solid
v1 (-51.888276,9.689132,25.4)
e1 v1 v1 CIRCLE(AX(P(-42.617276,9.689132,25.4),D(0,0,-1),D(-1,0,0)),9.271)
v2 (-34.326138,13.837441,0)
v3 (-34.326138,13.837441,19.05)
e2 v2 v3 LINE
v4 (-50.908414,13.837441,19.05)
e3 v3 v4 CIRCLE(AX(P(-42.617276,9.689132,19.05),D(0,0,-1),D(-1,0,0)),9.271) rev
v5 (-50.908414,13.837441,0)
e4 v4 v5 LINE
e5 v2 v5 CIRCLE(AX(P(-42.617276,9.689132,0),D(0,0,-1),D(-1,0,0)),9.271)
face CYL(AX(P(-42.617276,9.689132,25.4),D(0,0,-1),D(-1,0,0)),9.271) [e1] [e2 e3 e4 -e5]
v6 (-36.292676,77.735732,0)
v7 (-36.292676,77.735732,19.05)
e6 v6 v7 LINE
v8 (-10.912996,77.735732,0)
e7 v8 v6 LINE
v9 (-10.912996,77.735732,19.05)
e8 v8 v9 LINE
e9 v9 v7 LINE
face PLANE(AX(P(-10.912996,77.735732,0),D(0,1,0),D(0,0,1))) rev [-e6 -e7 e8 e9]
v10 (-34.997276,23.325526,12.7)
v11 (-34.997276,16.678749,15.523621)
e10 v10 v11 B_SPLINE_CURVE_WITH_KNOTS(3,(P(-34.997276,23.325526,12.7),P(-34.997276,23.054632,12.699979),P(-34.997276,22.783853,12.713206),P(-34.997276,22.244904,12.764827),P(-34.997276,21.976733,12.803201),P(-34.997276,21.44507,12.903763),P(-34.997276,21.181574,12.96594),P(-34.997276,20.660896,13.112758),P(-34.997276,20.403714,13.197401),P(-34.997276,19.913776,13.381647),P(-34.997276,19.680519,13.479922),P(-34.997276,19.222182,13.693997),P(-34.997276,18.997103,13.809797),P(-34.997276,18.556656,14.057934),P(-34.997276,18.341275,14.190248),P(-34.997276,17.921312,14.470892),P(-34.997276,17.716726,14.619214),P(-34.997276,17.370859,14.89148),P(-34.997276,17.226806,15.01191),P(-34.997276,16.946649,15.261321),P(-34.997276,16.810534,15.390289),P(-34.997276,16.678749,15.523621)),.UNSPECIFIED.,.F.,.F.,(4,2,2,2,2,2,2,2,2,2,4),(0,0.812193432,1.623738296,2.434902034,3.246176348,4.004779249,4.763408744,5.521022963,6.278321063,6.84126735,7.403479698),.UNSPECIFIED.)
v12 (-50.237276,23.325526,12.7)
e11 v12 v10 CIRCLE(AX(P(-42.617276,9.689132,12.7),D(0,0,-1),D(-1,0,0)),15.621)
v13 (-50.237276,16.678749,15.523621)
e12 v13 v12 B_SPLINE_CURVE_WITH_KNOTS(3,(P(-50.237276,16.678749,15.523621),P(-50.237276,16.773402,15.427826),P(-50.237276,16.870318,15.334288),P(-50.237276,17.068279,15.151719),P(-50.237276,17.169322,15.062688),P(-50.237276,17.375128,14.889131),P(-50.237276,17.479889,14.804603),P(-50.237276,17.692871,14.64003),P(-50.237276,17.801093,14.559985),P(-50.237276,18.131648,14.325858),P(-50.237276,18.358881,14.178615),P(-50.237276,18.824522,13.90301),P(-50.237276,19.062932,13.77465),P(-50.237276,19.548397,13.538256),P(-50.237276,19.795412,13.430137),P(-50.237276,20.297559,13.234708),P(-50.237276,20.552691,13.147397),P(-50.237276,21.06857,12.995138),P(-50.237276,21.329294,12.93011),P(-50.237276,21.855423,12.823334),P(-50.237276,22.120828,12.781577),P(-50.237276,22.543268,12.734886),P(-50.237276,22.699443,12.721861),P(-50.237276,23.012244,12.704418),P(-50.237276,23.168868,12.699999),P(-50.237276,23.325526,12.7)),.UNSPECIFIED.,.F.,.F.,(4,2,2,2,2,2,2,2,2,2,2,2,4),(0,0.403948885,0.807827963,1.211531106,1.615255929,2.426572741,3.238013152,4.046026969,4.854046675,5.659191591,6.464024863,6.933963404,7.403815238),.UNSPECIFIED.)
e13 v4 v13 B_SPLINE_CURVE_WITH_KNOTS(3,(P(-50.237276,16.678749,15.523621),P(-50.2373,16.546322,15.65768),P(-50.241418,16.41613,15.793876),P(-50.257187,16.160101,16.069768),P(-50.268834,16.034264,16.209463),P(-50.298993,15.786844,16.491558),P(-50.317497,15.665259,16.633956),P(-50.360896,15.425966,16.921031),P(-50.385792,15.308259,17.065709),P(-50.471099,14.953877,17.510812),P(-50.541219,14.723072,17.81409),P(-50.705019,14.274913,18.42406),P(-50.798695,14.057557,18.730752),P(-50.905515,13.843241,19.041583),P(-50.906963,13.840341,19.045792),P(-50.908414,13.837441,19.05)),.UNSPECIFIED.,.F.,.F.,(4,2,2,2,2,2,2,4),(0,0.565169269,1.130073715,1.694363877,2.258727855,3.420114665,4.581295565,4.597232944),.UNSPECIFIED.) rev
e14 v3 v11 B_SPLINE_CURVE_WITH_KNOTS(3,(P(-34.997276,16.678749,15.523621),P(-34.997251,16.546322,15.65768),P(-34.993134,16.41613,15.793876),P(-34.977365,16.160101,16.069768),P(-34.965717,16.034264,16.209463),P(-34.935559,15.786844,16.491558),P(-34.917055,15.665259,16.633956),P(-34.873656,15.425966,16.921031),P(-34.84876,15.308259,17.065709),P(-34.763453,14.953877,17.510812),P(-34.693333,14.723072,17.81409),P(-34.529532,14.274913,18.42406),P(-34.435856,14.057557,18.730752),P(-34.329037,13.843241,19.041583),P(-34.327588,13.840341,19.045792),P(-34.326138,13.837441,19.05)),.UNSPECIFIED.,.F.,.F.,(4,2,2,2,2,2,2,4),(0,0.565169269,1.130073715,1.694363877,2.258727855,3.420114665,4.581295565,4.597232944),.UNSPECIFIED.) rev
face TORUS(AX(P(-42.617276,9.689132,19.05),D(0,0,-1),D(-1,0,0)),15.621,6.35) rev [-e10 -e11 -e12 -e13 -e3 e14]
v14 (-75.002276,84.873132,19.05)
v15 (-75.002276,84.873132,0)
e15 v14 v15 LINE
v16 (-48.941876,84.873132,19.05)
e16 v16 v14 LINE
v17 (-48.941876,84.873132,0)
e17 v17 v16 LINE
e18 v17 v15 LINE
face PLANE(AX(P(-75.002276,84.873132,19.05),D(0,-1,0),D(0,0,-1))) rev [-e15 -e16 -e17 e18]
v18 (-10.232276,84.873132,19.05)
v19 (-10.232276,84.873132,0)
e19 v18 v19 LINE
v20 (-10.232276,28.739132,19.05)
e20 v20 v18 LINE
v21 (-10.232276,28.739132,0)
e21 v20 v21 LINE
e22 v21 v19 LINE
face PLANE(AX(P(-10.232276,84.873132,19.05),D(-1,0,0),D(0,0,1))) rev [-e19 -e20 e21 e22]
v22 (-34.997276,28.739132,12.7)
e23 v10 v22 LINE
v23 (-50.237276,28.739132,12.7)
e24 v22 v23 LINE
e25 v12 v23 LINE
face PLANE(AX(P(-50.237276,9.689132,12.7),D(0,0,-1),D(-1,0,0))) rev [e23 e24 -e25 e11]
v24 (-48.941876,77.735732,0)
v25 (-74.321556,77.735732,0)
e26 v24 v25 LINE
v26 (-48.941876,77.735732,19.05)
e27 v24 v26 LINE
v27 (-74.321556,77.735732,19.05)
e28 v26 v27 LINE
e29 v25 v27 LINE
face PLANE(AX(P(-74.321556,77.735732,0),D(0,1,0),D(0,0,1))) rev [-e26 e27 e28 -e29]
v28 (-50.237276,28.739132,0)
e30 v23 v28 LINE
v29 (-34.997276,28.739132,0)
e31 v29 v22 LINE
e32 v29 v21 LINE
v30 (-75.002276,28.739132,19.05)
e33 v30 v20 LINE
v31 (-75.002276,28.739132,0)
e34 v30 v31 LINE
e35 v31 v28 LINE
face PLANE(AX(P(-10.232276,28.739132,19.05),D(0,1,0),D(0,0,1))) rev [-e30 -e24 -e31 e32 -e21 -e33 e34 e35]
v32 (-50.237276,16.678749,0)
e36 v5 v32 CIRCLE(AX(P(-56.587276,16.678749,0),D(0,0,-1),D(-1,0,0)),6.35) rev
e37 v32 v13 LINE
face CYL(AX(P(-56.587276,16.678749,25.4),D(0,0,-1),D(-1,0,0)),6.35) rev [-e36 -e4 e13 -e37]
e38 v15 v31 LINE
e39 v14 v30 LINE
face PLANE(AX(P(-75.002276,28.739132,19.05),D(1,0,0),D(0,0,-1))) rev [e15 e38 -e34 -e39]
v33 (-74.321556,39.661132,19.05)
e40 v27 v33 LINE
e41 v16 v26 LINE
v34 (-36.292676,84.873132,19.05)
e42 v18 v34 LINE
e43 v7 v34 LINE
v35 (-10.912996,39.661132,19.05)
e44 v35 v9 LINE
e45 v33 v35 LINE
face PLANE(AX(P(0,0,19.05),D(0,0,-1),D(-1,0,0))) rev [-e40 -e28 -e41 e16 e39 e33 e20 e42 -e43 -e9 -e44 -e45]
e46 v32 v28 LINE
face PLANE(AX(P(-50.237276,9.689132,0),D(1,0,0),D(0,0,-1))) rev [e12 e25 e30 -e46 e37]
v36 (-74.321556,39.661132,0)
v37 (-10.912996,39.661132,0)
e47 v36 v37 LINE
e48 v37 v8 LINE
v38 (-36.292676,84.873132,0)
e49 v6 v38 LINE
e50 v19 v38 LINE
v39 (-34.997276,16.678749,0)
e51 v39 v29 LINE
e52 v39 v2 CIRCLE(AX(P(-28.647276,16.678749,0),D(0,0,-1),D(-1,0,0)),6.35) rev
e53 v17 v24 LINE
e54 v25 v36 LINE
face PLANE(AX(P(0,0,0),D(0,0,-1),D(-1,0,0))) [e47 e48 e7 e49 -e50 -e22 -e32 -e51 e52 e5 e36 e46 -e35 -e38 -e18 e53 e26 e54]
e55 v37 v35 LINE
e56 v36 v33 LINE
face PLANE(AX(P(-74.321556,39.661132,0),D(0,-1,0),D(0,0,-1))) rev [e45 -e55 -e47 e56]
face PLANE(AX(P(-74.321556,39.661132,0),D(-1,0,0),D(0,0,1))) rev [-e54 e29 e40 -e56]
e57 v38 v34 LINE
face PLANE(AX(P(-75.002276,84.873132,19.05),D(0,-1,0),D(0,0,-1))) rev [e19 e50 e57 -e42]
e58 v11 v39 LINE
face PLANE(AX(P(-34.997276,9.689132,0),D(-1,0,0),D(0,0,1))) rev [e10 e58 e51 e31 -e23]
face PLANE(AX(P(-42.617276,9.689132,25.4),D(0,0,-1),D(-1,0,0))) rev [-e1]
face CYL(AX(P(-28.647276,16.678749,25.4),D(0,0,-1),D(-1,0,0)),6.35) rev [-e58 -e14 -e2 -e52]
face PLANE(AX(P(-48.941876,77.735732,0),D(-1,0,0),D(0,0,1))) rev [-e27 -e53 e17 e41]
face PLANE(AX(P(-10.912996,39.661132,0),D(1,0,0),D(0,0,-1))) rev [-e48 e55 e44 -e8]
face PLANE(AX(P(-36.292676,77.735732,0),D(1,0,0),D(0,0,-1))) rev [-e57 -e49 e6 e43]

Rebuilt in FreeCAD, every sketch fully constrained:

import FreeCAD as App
import Part
import Sketcher
from FreeCAD import Vector
Q = App.Units.Quantity


def edges_at(feature, points):
    """Names of the edges that pass closest to the given points."""
    edges = feature.Shape.Edges
    near = lambda p: min(range(len(edges)), key=lambda i: edges[i].distToShape(Part.Vertex(*p))[0])
    return sorted({f"Edge{near(p) + 1}" for p in points})

doc = App.newDocument("Part")
params = doc.addObject("Spreadsheet::Sheet", "Params")
for row, (alias, value) in enumerate([
    ("sketch1_width", "2.55 in"),
    ("sketch1_height", "2.21 in"),
    ("pad1_length", "0.75 in"),
    ("sketch2_width", "0.498 in"),
    ("sketch2_height", "1.499 in"),
    ("sketch2_height2", "0.281 in"),
    ("sketch3_width", "0.6 in"),
    ("sketch3_height", "0.5 in"),
    ("pad2_length", "0.75 in"),
    ("sketch4_diameter", "0.73 in"),
    ("pad3_length", "1 in"),
    ("fillet_radius", "0.25 in"),
], start=1):
    params.set(f"A{row}", alias)
    params.set(f"B{row}", "=" + value)
    params.setAlias(f"B{row}", alias)

body = doc.addObject("PartDesign::Body", "Body")

# Sketch on XY plane
sketch1 = doc.addObject("Sketcher::SketchObject", "Sketch")
body.addObject(sketch1)
sketch1.AttachmentSupport = (doc.XY_Plane, [""])
sketch1.MapMode = "FlatFace"
sketch1.addGeometry([
    Part.LineSegment(Vector(-75, 85, 0), Vector(-75, 29, 0)),
    Part.LineSegment(Vector(-75, 29, 0), Vector(-10, 29, 0)),
    Part.LineSegment(Vector(-10, 29, 0), Vector(-10, 85, 0)),
    Part.LineSegment(Vector(-10, 85, 0), Vector(-75, 85, 0)),
], False)
sketch1.addConstraint([
    Sketcher.Constraint("Coincident", 0, 2, 1, 1),
    Sketcher.Constraint("Coincident", 1, 2, 2, 1),
    Sketcher.Constraint("Coincident", 2, 2, 3, 1),
    Sketcher.Constraint("Coincident", 3, 2, 0, 1),
    Sketcher.Constraint("Vertical", 0),
    Sketcher.Constraint("Horizontal", 1),
    Sketcher.Constraint("Vertical", 2),
    Sketcher.Constraint("Horizontal", 3),
    Sketcher.Constraint("DistanceX", 1, 1, 1, 2, Q("2.55 in")),
    Sketcher.Constraint("DistanceY", 0, 2, 0, 1, Q("2.21 in")),
    Sketcher.Constraint("DistanceX", 0, 2, -1, 1, 75.002276),
    Sketcher.Constraint("DistanceY", -1, 1, 0, 2, 28.739132),
])
sketch1.setExpression("Constraints[8]", "Params.sketch1_width")
sketch1.setExpression("Constraints[9]", "Params.sketch1_height")
pad1 = doc.addObject("PartDesign::Pad", "Pad")
body.addObject(pad1)
pad1.Profile = sketch1
pad1.setExpression("Length", "Params.pad1_length")

# Sketch on XY plane
sketch2 = doc.addObject("Sketcher::SketchObject", "Sketch001")
body.addObject(sketch2)
sketch2.AttachmentSupport = (doc.XY_Plane, [""])
sketch2.MapMode = "FlatFace"
sketch2.AttachmentOffset = App.Placement(Vector(0, 0, 0.75 * 25.4), App.Rotation())
sketch2.addGeometry([
    Part.LineSegment(Vector(-74, 40, 0), Vector(-11, 40, 0)),  # 0
    Part.LineSegment(Vector(-11, 40, 0), Vector(-11, 78, 0)),  # 1
    Part.LineSegment(Vector(-11, 78, 0), Vector(-36, 78, 0)),  # 2
    Part.LineSegment(Vector(-36, 78, 0), Vector(-36, 85, 0)),  # 3
    Part.LineSegment(Vector(-36, 85, 0), Vector(-49, 85, 0)),  # 4
    Part.LineSegment(Vector(-49, 85, 0), Vector(-49, 78, 0)),  # 5
    Part.LineSegment(Vector(-49, 78, 0), Vector(-74, 78, 0)),  # 6
    Part.LineSegment(Vector(-74, 78, 0), Vector(-74, 40, 0)),  # 7
], False)
sketch2.addConstraint([
    Sketcher.Constraint("Coincident", 0, 2, 1, 1),
    Sketcher.Constraint("Coincident", 1, 2, 2, 1),
    Sketcher.Constraint("Coincident", 2, 2, 3, 1),
    Sketcher.Constraint("Coincident", 3, 2, 4, 1),
    Sketcher.Constraint("Coincident", 4, 2, 5, 1),
    Sketcher.Constraint("Coincident", 5, 2, 6, 1),
    Sketcher.Constraint("Coincident", 6, 2, 7, 1),
    Sketcher.Constraint("Coincident", 7, 2, 0, 1),
    Sketcher.Constraint("Horizontal", 0),
    Sketcher.Constraint("Vertical", 1),
    Sketcher.Constraint("Horizontal", 2),
    Sketcher.Constraint("Vertical", 3),
    Sketcher.Constraint("Horizontal", 4),
    Sketcher.Constraint("Vertical", 5),
    Sketcher.Constraint("Horizontal", 6),
    Sketcher.Constraint("Vertical", 7),
    Sketcher.Constraint("Horizontal", 2, 2, 5, 2),
    Sketcher.Constraint("Equal", 2, 6),
    Sketcher.Constraint("DistanceX", 4, 2, 4, 1, Q("0.498 in")),
    Sketcher.Constraint("DistanceY", 1, 1, 1, 2, Q("1.499 in")),
    Sketcher.Constraint("DistanceY", 3, 1, 3, 2, Q("0.281 in")),
    Sketcher.Constraint("DistanceX", 0, 1, 0, 2, Q("2.4964 in")),
    Sketcher.Constraint("DistanceX", 0, 2, -1, 1, 10.912996),
    Sketcher.Constraint("DistanceY", -1, 1, 0, 2, 39.661132),
])
sketch2.setExpression("Constraints[18]", "Params.sketch2_width")
sketch2.setExpression("Constraints[19]", "Params.sketch2_height")
sketch2.setExpression("Constraints[20]", "Params.sketch2_height2")
pocket1 = doc.addObject("PartDesign::Pocket", "Pocket")
body.addObject(pocket1)
pocket1.Profile = sketch2
pocket1.Type = "ThroughAll"

# Sketch on XZ plane
sketch3 = doc.addObject("Sketcher::SketchObject", "Sketch002")
body.addObject(sketch3)
sketch3.AttachmentSupport = (doc.XZ_Plane, [""])
sketch3.MapMode = "FlatFace"
sketch3.AttachmentOffset = App.Placement(Vector(0, 0, -28.739132), App.Rotation())
sketch3.addGeometry([
    Part.LineSegment(Vector(-35, 0, 0), Vector(-35, 13, 0)),
    Part.LineSegment(Vector(-35, 13, 0), Vector(-50, 13, 0)),
    Part.LineSegment(Vector(-50, 13, 0), Vector(-50, 0, 0)),
    Part.LineSegment(Vector(-50, 0, 0), Vector(-35, 0, 0)),
], False)
sketch3.addConstraint([
    Sketcher.Constraint("Coincident", 0, 2, 1, 1),
    Sketcher.Constraint("Coincident", 1, 2, 2, 1),
    Sketcher.Constraint("Coincident", 2, 2, 3, 1),
    Sketcher.Constraint("Coincident", 3, 2, 0, 1),
    Sketcher.Constraint("Vertical", 0),
    Sketcher.Constraint("Horizontal", 1),
    Sketcher.Constraint("Vertical", 2),
    Sketcher.Constraint("Horizontal", 3),
    Sketcher.Constraint("PointOnObject", 2, 2, -1),
    Sketcher.Constraint("DistanceX", 1, 2, 1, 1, Q("0.6 in")),
    Sketcher.Constraint("DistanceY", 0, 1, 0, 2, Q("0.5 in")),
    Sketcher.Constraint("DistanceX", 0, 2, -1, 1, 34.997276),
])
sketch3.setExpression("Constraints[9]", "Params.sketch3_width")
sketch3.setExpression("Constraints[10]", "Params.sketch3_height")
pad2 = doc.addObject("PartDesign::Pad", "Pad001")
body.addObject(pad2)
pad2.Profile = sketch3
pad2.setExpression("Length", "Params.pad2_length")

# Sketch on XY plane
sketch4 = doc.addObject("Sketcher::SketchObject", "Sketch003")
body.addObject(sketch4)
sketch4.AttachmentSupport = (doc.XY_Plane, [""])
sketch4.MapMode = "FlatFace"
sketch4.addGeometry(Part.Circle(Vector(-43, 10, 0), Vector(0, 0, 1), 9), False)
sketch4.addConstraint([
    Sketcher.Constraint("Diameter", 0, Q("0.73 in")),
    Sketcher.Constraint("DistanceX", 0, 3, -1, 1, 42.617276),
    Sketcher.Constraint("DistanceY", -1, 1, 0, 3, 9.689132),
])
sketch4.setExpression("Constraints[0]", "Params.sketch4_diameter")
pad3 = doc.addObject("PartDesign::Pad", "Pad002")
body.addObject(pad3)
pad3.Profile = sketch4
pad3.setExpression("Length", "Params.pad3_length")
doc.recompute()

fillet = doc.addObject("PartDesign::Fillet", "Fillet")
body.addObject(fillet)
fillet.Base = (pad3, edges_at(pad3, [(-50.237, 14.97, 6.35), (-42.617, 18.96, 12.7), (-34.997, 14.97, 6.35)]))
fillet.setExpression("Radius", "Params.fillet_radius")

doc.recompute()
